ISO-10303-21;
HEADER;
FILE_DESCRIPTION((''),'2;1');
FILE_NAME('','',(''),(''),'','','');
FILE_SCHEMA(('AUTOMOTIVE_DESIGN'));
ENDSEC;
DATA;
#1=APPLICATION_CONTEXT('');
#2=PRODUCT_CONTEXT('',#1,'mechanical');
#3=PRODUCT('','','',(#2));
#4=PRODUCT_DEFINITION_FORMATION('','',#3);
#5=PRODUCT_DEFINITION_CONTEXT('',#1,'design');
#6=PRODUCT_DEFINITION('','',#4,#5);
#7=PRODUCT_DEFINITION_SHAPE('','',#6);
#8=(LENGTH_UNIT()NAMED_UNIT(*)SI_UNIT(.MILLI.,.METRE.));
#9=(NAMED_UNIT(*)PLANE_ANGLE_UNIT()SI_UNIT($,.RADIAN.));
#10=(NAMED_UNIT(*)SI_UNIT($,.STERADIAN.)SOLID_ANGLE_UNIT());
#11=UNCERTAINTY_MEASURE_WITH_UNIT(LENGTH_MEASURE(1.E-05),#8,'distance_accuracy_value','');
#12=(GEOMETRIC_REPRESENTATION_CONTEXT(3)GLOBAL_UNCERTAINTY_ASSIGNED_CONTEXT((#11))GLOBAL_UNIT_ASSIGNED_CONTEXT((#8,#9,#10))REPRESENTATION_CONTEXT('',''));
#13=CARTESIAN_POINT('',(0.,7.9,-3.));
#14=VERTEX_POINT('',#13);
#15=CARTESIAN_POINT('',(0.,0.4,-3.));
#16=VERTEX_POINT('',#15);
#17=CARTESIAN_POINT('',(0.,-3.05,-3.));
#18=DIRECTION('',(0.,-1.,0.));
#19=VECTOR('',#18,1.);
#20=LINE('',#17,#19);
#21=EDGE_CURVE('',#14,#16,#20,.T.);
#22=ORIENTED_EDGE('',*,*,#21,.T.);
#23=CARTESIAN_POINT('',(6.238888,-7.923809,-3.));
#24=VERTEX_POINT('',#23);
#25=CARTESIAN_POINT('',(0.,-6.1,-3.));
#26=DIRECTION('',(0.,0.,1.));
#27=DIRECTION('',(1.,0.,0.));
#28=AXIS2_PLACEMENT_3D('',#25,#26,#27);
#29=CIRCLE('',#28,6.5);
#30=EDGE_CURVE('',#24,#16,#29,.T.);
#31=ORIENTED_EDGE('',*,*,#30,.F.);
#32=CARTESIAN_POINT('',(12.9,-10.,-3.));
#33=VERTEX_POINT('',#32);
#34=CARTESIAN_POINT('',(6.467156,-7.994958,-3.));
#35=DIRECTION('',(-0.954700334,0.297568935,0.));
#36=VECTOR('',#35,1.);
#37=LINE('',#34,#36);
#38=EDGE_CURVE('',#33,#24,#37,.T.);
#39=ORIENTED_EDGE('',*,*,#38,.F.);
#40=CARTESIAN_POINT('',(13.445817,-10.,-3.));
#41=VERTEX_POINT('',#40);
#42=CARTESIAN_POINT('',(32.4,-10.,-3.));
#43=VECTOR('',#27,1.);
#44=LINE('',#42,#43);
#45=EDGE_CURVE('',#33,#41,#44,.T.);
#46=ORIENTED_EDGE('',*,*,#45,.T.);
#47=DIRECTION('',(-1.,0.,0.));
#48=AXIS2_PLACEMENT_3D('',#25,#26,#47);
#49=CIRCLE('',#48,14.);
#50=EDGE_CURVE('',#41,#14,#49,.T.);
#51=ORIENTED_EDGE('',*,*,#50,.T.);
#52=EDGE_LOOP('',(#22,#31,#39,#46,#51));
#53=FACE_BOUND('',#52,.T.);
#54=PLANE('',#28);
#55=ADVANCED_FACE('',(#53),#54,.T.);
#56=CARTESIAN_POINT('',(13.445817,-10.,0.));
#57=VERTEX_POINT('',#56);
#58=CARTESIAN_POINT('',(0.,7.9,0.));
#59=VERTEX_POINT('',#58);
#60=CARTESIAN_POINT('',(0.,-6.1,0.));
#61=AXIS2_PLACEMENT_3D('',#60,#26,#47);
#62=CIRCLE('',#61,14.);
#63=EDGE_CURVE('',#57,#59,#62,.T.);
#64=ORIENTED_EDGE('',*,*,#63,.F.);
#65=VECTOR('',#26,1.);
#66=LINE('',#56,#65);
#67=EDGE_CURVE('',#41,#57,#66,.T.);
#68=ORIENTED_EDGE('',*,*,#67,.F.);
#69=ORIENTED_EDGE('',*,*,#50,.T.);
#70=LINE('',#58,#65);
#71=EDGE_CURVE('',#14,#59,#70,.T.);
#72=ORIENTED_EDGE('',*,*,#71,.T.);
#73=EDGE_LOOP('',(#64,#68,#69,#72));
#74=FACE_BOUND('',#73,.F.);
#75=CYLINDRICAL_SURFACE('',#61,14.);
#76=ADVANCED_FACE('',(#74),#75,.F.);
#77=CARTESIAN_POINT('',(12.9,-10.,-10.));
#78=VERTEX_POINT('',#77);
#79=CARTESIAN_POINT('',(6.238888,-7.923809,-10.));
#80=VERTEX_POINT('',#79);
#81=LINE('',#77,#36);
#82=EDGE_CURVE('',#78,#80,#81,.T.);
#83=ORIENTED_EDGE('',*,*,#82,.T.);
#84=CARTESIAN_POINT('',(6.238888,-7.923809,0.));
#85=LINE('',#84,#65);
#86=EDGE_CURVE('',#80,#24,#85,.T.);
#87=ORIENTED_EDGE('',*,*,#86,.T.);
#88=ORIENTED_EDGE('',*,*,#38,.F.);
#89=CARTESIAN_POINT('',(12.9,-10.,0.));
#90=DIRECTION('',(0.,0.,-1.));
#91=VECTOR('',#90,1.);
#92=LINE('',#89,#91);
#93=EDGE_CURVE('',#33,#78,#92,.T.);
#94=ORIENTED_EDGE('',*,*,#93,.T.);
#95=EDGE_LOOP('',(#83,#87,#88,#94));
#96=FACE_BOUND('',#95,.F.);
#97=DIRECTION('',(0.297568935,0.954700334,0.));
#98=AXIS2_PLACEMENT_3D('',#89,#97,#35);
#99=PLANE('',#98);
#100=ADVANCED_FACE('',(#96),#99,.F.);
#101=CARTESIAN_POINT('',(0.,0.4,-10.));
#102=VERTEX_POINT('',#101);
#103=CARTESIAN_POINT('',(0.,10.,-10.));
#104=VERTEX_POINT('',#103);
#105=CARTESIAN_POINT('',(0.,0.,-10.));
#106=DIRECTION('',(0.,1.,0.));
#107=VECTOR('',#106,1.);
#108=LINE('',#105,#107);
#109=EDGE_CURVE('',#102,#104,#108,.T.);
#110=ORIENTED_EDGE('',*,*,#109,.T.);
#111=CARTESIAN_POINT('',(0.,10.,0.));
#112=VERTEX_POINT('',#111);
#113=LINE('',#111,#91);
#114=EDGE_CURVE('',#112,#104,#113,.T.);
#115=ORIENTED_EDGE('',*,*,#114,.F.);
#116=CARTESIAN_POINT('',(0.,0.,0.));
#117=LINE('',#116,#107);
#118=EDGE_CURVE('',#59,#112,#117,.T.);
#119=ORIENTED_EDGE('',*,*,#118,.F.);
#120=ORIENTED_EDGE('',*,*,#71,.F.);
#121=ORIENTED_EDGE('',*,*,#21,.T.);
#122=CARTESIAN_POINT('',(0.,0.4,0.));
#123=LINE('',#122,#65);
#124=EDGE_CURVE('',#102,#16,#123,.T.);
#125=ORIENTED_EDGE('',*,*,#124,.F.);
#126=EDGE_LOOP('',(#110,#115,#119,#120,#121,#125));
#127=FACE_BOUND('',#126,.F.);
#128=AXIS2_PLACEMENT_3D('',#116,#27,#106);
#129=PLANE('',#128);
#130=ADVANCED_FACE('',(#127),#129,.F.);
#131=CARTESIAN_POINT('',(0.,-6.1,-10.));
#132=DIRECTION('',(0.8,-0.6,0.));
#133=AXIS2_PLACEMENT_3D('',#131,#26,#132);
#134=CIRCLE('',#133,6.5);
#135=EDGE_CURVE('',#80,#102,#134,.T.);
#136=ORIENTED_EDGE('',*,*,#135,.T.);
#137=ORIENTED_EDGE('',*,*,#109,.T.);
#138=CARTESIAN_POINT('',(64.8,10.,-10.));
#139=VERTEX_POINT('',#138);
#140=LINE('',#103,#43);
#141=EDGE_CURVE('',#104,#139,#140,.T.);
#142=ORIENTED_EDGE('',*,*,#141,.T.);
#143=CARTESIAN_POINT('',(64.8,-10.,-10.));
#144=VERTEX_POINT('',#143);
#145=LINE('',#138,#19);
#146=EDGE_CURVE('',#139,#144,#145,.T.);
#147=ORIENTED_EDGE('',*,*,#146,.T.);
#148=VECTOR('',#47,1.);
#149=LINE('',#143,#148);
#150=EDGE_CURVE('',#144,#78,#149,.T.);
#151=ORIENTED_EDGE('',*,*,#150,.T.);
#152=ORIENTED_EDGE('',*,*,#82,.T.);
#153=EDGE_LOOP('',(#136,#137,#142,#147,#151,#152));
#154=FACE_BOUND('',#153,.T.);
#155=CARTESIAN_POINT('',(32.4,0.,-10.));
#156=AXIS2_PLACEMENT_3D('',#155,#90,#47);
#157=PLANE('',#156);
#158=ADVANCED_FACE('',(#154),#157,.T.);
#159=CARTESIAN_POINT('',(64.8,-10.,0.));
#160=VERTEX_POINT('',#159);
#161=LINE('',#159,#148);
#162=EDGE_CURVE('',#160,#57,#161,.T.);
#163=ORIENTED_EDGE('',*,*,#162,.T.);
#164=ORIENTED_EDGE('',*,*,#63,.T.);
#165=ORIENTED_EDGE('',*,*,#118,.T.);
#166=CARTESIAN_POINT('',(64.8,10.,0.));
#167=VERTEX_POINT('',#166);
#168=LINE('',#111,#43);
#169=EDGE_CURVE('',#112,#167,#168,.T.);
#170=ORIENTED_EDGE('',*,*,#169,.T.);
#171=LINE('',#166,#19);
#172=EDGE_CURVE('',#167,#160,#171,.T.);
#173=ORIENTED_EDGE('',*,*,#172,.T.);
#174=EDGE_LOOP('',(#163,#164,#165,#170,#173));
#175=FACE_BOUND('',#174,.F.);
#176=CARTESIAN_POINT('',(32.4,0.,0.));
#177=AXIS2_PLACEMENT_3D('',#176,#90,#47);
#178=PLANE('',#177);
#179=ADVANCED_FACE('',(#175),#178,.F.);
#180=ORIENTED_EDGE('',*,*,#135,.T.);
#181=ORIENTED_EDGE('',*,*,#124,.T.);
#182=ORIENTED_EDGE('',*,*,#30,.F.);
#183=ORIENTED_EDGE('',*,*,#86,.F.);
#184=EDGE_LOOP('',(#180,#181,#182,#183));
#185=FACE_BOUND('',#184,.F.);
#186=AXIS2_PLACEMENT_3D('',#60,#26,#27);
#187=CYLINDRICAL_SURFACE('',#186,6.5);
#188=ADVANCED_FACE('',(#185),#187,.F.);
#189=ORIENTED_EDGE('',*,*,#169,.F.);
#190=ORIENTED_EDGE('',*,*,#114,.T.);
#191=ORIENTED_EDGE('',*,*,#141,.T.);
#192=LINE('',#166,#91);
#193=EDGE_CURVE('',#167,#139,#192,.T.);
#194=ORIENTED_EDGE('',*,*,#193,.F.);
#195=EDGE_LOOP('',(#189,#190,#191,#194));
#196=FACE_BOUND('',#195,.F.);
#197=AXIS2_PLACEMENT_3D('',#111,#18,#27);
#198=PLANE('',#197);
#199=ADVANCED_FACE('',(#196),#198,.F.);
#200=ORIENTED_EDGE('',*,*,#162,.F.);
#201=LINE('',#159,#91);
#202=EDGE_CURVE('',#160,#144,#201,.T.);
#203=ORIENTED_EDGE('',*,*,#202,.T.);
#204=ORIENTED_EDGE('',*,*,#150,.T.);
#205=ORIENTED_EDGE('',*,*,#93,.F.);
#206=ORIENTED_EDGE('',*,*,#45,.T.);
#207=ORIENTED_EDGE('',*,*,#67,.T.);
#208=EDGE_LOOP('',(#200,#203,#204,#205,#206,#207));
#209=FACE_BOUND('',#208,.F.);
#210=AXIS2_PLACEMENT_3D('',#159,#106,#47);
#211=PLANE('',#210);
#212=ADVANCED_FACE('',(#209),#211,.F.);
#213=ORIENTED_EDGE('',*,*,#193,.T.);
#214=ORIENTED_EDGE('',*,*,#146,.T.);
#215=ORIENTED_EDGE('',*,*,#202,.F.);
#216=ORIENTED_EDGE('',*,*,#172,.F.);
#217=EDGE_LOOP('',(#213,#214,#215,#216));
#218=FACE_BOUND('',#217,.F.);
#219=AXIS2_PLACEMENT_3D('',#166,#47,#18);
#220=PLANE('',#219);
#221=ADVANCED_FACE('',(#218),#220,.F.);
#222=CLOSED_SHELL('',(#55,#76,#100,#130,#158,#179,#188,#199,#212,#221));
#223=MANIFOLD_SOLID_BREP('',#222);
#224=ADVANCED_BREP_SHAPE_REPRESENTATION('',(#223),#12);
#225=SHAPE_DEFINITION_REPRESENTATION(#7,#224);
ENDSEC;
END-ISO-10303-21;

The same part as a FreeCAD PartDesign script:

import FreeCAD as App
import Part
import Sketcher
from FreeCAD import Vector


def add_polygon(sketch, points):
    """Adds a closed chain of lines whose ends are joined by coincident constraints."""
    first, n = sketch.GeometryCount, len(points)
    for a, b in zip(points, points[1:] + points[:1]):
        sketch.addGeometry(Part.LineSegment(App.Vector(*a, 0), App.Vector(*b, 0)), False)
    for i in range(n):
        sketch.addConstraint(Sketcher.Constraint("Coincident", first + i, 2, first + (i + 1) % n, 1))

doc = App.newDocument("Part")
body = doc.addObject("PartDesign::Body", "Body")

sketch1 = body.newObject("Sketcher::SketchObject", "Sketch")
sketch1.AttachmentSupport = (doc.getObject("XY_Plane"), [""])
sketch1.MapMode = "FlatFace"
add_polygon(sketch1, [(0, 10), (0, -10), (65, -10), (65, 10)])
sketch1.addConstraint(Sketcher.Constraint("Vertical", 0))
sketch1.addConstraint(Sketcher.Constraint("Horizontal", 1))
sketch1.addConstraint(Sketcher.Constraint("Vertical", 2))
sketch1.addConstraint(Sketcher.Constraint("Horizontal", 3))
sketch1.addConstraint(Sketcher.Constraint("Symmetric", 0, 2, 3, 2, -1, 1))
sketch1.addConstraint(Sketcher.Constraint("DistanceY", 0, 2, 0, 1, 20.0))
sketch1.addConstraint(Sketcher.Constraint("DistanceX", 1, 1, 1, 2, 64.8))
pad1 = body.newObject("PartDesign::Pad", "Pad")
pad1.Profile = sketch1
pad1.Length = 10
pad1.Reversed = True

sketch2 = body.newObject("Sketcher::SketchObject", "Sketch001")
sketch2.AttachmentSupport = (doc.getObject("XY_Plane"), [""])
sketch2.MapMode = "FlatFace"
sketch2.addGeometry(Part.Circle(Vector(0, -6, 0), Vector(0, 0, 1), 6), False)
sketch2.addConstraint(Sketcher.Constraint("PointOnObject", 0, 3, -2))
sketch2.addConstraint(Sketcher.Constraint("Diameter", 0, 13.0))
sketch2.addConstraint(Sketcher.Constraint("DistanceY", 0, 3, -1, 1, 6.1))
pocket1 = body.newObject("PartDesign::Pocket", "Pocket")
pocket1.Profile = sketch2
pocket1.Length = 10

sketch3 = body.newObject("Sketcher::SketchObject", "Sketch002")
sketch3.AttachmentSupport = (doc.getObject("XY_Plane"), [""])
sketch3.MapMode = "FlatFace"
sketch3.addGeometry(Part.Circle(Vector(0, -6, 0), Vector(0, 0, 1), 14), False)
sketch3.addConstraint(Sketcher.Constraint("PointOnObject", 0, 3, -2))
sketch3.addConstraint(Sketcher.Constraint("Diameter", 0, 28.0))
sketch3.addConstraint(Sketcher.Constraint("DistanceY", 0, 3, -1, 1, 6.1))
pocket2 = body.newObject("PartDesign::Pocket", "Pocket001")
pocket2.Profile = sketch3
pocket2.Length = 3

sketch4 = body.newObject("Sketcher::SketchObject", "Sketch003")
sketch4.AttachmentSupport = (doc.getObject("XY_Plane"), [""])
sketch4.MapMode = "FlatFace"
add_polygon(sketch4, [(5.2, -7.6), (5.2, -10), (12.9, -10)])
sketch4.addConstraint(Sketcher.Constraint("Vertical", 0))
sketch4.addConstraint(Sketcher.Constraint("Horizontal", 1))
sketch4.addConstraint(Sketcher.Constraint("DistanceX", 1, 1, 1, 2, 7.7))
sketch4.addConstraint(Sketcher.Constraint("DistanceY", 0, 2, 0, 1, 2.4))
sketch4.addConstraint(Sketcher.Constraint("DistanceY", 0, 2, -1, 1, 10.0))
sketch4.addConstraint(Sketcher.Constraint("DistanceX", -1, 1, 0, 2, 5.2))
pocket3 = body.newObject("PartDesign::Pocket", "Pocket002")
pocket3.Profile = sketch4
pocket3.Length = 10

doc.recompute()
